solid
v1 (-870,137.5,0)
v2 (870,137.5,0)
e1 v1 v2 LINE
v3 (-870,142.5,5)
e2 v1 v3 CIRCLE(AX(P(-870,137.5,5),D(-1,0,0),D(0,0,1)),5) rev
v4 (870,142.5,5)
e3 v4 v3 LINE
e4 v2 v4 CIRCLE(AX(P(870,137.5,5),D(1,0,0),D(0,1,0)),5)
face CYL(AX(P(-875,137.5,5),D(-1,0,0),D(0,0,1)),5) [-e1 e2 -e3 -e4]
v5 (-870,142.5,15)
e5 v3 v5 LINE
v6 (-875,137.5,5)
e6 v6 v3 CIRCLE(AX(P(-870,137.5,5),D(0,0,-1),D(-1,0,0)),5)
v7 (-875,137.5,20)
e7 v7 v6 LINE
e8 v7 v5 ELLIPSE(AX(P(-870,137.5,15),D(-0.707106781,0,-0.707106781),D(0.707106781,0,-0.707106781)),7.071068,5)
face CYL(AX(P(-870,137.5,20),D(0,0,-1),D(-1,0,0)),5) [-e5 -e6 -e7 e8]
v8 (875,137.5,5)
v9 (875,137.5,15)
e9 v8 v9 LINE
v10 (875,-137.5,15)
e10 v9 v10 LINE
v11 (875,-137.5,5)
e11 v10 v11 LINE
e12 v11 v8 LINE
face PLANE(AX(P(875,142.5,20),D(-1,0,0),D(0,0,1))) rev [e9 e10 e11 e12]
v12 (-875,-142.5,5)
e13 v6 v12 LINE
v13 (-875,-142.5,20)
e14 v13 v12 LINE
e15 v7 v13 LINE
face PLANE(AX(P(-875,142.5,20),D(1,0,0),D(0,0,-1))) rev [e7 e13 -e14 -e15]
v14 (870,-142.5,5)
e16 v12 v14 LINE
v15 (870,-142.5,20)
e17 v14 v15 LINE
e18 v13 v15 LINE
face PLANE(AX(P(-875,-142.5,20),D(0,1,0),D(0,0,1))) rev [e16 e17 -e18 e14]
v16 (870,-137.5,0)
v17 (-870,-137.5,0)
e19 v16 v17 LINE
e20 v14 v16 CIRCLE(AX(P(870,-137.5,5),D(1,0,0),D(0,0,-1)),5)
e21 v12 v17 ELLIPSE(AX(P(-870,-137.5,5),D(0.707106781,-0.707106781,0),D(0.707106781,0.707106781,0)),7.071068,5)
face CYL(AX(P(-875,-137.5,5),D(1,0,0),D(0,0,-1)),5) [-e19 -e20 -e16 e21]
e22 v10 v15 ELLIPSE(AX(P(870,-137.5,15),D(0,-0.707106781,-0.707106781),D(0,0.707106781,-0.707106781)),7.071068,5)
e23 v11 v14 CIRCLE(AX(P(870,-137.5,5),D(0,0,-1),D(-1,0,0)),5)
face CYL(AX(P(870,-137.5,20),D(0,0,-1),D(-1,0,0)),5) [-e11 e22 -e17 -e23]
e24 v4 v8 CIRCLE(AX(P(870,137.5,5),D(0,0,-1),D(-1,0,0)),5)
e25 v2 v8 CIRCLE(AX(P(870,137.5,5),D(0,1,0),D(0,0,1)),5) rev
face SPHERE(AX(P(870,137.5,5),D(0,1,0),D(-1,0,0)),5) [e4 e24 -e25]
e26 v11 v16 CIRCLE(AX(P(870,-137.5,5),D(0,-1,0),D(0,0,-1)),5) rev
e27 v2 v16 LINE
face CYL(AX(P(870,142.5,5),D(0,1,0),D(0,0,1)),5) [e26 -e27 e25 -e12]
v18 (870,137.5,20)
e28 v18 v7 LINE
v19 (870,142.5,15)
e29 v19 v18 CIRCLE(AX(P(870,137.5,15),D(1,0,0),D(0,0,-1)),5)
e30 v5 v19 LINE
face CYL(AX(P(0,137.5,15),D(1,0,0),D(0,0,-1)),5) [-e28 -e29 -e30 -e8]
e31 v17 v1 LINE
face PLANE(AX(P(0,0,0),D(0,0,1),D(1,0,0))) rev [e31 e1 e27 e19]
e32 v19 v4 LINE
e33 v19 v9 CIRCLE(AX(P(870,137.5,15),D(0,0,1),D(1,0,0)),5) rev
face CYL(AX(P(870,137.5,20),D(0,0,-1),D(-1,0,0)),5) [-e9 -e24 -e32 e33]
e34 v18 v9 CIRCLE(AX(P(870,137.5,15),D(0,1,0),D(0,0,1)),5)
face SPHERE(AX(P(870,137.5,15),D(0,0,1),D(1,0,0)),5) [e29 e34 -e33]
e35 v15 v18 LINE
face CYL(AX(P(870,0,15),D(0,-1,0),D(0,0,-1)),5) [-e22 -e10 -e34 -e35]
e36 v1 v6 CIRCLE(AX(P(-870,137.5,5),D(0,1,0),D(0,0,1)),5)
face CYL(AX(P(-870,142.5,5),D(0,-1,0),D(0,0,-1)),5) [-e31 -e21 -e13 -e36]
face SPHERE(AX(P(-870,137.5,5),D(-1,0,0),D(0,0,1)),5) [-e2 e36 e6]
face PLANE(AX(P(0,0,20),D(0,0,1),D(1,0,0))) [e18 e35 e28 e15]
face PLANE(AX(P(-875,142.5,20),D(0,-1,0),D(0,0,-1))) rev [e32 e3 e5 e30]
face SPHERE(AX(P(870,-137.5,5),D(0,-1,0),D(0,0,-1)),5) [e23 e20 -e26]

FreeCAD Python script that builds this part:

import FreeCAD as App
import Part
import Sketcher

V = App.Vector


def edges_at(feature, points):
    """Names of the edges that pass closest to the given points."""
    edges = feature.Shape.Edges
    near = lambda p: min(range(len(edges)), key=lambda i: edges[i].distToShape(Part.Vertex(*p))[0])
    return sorted({f"Edge{near(p) + 1}" for p in points})

doc = App.newDocument("Part")
params = doc.addObject("Spreadsheet::Sheet", "Params")
for row, (alias, value) in enumerate([
    ("sketch1_width", "1750 mm"),
    ("sketch1_height", "285 mm"),
    ("pad1_length", "20 mm"),
    ("fillet_radius", "5 mm"),
], start=1):
    params.set(f"A{row}", alias)
    params.set(f"B{row}", "=" + value)
    params.setAlias(f"B{row}", alias)

body = doc.addObject("PartDesign::Body", "Body")

# Sketch on XY plane
sketch1 = body.newObject("Sketcher::SketchObject", "Sketch")
sketch1.AttachmentSupport = (doc.getObject("XY_Plane"), [""])
sketch1.MapMode = "FlatFace"
sketch1.addGeometry([
    Part.LineSegment(V(-875, 142, 0), V(-875, -142, 0)),
    Part.LineSegment(V(-875, -142, 0), V(875, -142, 0)),
    Part.LineSegment(V(875, -142, 0), V(875, 142, 0)),
    Part.LineSegment(V(875, 142, 0), V(-875, 142, 0)),
], False)
sketch1.addConstraint([
    Sketcher.Constraint("Coincident", 0, 2, 1, 1),
    Sketcher.Constraint("Coincident", 1, 2, 2, 1),
    Sketcher.Constraint("Coincident", 2, 2, 3, 1),
    Sketcher.Constraint("Coincident", 3, 2, 0, 1),
    Sketcher.Constraint("Vertical", 0),
    Sketcher.Constraint("Horizontal", 1),
    Sketcher.Constraint("Vertical", 2),
    Sketcher.Constraint("Horizontal", 3),
    Sketcher.Constraint("Symmetric", 0, 2, 2, 2, -1, 1),
    Sketcher.Constraint("DistanceX", 1, 1, 1, 2, 1750.0),
    Sketcher.Constraint("DistanceY", 0, 2, 0, 1, 285.0),
])
sketch1.setExpression("Constraints[9]", "Params.sketch1_width")
sketch1.setExpression("Constraints[10]", "Params.sketch1_height")
pad1 = body.newObject("PartDesign::Pad", "Pad")
pad1.Profile = sketch1
pad1.setExpression("Length", "Params.pad1_length")
doc.recompute()

fillet = body.newObject("PartDesign::Fillet", "Fillet")
fillet.Base = (pad1, edges_at(pad1, [
    (875, 0, 20),
    (0, -142.5, 0),
    (-875, 0, 0),
    (0, 142.5, 0),
    (875, 0, 0),
    (875, -142.5, 10),
    (-875, 142.5, 10),
    (875, 142.5, 10),
    (0, 142.5, 20),
]))
fillet.setExpression("Radius", "Params.fillet_radius")

doc.recompute()
